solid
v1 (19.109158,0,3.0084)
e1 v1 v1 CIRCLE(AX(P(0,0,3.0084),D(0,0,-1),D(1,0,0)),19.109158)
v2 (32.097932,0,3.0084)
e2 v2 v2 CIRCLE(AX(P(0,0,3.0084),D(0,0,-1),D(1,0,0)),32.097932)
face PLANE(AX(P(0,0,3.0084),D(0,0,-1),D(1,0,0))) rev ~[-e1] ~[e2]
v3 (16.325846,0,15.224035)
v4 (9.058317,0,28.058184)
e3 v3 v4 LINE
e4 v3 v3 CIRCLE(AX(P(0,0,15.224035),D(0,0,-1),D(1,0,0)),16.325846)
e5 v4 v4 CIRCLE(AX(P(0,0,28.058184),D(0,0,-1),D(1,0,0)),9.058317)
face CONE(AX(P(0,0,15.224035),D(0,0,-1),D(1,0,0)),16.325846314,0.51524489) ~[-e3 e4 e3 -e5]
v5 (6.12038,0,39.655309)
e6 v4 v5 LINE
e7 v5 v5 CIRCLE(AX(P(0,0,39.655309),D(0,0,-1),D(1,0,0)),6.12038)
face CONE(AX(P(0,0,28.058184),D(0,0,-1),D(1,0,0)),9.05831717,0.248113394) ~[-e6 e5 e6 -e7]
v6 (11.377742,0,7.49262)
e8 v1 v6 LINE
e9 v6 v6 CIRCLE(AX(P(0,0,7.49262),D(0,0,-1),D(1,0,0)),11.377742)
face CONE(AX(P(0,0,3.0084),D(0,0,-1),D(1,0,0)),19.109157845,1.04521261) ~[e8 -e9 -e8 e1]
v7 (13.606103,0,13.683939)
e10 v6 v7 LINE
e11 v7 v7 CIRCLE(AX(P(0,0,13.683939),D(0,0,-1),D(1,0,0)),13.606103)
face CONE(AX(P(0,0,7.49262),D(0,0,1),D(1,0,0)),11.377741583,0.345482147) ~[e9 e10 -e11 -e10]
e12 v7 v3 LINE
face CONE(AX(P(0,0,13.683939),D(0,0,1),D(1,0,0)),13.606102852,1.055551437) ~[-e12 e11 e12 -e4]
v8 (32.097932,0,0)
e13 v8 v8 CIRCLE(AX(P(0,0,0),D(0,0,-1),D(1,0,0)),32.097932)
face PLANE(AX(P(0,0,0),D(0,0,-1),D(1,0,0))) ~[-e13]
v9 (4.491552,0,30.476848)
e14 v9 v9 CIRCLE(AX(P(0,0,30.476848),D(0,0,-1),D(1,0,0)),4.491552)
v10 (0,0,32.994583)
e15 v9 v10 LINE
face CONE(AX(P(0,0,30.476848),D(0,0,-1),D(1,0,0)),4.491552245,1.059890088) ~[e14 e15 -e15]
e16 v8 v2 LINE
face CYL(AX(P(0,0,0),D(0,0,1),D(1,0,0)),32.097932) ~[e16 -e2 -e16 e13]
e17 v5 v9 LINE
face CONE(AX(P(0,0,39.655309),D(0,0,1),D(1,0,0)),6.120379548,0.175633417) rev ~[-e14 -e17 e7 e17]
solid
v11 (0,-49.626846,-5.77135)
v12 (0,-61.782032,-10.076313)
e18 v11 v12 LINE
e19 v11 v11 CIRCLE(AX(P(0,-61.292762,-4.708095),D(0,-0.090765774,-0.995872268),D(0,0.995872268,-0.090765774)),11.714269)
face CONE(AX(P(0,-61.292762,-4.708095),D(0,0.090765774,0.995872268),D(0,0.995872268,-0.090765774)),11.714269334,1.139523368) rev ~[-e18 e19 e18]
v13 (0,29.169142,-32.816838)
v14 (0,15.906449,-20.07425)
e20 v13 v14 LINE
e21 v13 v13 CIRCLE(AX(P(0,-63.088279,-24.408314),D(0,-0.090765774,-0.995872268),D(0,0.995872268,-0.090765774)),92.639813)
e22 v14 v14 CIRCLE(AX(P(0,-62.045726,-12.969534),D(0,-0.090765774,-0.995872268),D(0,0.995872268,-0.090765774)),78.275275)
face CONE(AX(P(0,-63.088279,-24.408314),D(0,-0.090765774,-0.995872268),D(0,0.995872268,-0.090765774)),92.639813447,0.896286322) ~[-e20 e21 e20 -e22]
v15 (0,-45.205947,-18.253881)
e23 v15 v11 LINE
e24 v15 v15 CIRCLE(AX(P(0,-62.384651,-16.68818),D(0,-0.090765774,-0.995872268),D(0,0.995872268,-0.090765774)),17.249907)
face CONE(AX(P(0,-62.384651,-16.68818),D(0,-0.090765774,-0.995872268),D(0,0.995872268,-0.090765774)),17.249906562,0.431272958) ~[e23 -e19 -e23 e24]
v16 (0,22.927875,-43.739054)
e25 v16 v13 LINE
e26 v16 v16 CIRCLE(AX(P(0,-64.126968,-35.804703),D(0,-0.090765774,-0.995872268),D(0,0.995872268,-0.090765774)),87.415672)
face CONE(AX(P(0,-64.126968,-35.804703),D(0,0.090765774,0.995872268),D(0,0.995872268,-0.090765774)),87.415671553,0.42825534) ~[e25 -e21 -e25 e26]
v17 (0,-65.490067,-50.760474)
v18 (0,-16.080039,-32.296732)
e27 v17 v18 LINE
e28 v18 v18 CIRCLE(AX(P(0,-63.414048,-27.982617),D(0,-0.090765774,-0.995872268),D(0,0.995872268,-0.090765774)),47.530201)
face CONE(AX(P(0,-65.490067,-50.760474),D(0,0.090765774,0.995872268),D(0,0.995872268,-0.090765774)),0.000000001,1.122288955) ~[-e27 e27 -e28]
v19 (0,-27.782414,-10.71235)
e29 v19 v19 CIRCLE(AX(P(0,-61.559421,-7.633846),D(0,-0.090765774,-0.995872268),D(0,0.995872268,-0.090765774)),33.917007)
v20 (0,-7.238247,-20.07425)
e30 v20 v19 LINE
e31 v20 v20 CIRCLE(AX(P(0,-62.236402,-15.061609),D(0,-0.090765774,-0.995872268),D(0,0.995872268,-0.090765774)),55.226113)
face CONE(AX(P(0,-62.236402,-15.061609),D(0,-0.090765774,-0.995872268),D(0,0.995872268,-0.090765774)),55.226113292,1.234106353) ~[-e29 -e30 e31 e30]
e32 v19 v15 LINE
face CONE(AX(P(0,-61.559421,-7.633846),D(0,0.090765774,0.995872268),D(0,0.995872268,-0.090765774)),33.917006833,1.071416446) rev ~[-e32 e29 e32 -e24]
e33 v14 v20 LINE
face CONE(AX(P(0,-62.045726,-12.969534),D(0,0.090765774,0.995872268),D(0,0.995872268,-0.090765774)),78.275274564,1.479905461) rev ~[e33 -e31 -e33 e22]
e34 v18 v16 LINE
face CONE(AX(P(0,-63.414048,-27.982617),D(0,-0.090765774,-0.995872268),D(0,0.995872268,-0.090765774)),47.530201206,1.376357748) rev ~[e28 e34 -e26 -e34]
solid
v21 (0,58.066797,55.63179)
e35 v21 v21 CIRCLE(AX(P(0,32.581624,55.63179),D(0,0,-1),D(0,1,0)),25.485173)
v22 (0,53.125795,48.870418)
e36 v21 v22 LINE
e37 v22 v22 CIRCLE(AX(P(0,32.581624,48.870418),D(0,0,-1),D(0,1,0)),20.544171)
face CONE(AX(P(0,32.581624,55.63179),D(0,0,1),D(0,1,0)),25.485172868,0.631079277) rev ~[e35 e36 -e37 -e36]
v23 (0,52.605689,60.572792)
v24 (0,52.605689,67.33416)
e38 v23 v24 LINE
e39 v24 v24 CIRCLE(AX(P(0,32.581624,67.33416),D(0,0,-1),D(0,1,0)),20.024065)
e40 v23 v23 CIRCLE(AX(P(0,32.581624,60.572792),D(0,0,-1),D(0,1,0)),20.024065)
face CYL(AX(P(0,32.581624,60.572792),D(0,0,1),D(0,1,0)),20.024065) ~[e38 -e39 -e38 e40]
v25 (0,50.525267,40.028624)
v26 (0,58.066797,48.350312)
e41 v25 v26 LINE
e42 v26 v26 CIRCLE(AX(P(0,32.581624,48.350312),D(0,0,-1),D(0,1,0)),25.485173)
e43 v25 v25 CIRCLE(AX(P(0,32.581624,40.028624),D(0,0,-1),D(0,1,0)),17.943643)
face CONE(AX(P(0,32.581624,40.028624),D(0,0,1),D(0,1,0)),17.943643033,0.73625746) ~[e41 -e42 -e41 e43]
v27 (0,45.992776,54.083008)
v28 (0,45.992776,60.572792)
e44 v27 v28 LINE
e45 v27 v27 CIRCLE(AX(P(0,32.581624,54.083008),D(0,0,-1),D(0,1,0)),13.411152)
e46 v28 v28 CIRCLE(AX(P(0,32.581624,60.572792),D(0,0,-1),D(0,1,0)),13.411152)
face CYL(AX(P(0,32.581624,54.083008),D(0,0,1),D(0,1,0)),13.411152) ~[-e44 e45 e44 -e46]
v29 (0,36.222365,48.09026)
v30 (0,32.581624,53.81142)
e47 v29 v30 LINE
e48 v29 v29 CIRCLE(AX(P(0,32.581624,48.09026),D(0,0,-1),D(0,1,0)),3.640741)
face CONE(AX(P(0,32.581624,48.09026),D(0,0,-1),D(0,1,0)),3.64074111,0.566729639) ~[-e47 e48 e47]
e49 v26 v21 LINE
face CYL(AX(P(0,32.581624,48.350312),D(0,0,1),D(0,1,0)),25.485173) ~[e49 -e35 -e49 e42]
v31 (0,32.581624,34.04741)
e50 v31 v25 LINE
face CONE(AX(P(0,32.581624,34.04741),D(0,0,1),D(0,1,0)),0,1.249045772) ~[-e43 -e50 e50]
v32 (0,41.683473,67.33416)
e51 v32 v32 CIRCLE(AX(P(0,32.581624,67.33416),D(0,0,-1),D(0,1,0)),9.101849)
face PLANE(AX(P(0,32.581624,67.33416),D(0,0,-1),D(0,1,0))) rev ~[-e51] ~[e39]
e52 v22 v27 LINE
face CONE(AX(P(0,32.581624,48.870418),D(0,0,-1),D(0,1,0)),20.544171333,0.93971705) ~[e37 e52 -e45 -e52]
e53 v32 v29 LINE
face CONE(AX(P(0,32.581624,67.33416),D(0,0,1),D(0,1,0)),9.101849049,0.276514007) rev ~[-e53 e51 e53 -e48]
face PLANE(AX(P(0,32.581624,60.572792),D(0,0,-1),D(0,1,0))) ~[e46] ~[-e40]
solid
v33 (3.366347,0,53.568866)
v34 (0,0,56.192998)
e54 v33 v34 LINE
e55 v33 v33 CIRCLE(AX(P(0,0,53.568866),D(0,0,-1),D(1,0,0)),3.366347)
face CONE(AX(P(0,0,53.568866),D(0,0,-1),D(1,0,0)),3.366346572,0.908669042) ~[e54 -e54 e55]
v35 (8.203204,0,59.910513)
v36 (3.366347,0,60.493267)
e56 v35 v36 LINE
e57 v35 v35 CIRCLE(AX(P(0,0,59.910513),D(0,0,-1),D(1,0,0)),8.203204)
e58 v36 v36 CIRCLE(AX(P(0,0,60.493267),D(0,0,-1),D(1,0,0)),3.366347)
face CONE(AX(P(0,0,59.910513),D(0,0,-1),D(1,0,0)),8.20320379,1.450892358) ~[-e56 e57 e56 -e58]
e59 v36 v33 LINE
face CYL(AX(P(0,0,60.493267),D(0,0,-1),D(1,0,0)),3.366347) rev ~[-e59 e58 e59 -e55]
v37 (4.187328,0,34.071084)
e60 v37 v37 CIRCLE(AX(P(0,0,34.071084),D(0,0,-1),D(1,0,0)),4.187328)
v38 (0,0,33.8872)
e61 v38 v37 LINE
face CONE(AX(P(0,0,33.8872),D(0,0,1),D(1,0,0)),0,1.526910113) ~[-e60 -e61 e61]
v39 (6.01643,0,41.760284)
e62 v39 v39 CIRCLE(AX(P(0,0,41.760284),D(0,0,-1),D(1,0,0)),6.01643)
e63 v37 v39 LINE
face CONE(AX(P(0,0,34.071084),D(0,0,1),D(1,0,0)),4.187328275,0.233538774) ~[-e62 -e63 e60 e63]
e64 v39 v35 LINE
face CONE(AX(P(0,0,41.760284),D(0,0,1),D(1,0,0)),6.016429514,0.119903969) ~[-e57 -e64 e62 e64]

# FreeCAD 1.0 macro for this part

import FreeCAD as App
import Part
import Sketcher
Q = App.Units.Quantity


def add_polygon(sketch, points):
    """Adds a closed chain of lines whose ends are joined by coincident constraints."""
    first, n = sketch.GeometryCount, len(points)
    for a, b in zip(points, points[1:] + points[:1]):
        sketch.addGeometry(Part.LineSegment(App.Vector(*a, 0), App.Vector(*b, 0)), False)
    for i in range(n):
        sketch.addConstraint(Sketcher.Constraint("Coincident", first + i, 2, first + (i + 1) % n, 1))

doc = App.newDocument("Part")
body = doc.addObject("PartDesign::Body", "Body")

# Sketch on XZ plane
sketch1 = body.newObject("Sketcher::SketchObject", "Sketch")
sketch1.AttachmentSupport = (doc.getObject("XZ_Plane"), [""])
sketch1.MapMode = "FlatFace"
add_polygon(sketch1, [(9.058317, 28.058184), (6.12038, 39.655309), (4.491552, 30.476848), (0, 32.994583), (0, 0), (32.097932, 0), (32.097932, 3.0084), (19.109158, 3.0084), (11.377742, 7.49262), (13.606103, 13.683939), (16.325846, 15.224035)])  # lines 0-10
sketch1.addConstraint([
    Sketcher.Constraint("Vertical", 3),
    Sketcher.Constraint("Horizontal", 4),
    Sketcher.Constraint("Vertical", 5),
    Sketcher.Constraint("Horizontal", 6),
    Sketcher.Constraint("Coincident", 3, 2, -1, 1),
    Sketcher.Constraint("Perpendicular", 9, 10),
    Sketcher.Constraint("DistanceY", 5, 1, 5, 2, Q("3.0084 mm")),
    Sketcher.Constraint("DistanceX", 4, 1, 4, 2, Q("32.097932 mm")),
    Sketcher.Constraint("DistanceY", 10, 2, 2, 2, Q("4.936399 mm")),
    Sketcher.Constraint("Distance", 1, Q("9.321869 mm")),
    Sketcher.Constraint("Distance", 2, Q("5.149081 mm")),
    Sketcher.Constraint("Distance", 7, Q("8.937731 mm")),
    Sketcher.Constraint("Distance", 10, Q("14.748979 mm")),
    Sketcher.Constraint("DistanceX", 6, 2, 6, 1, Q("12.988774 mm")),
    Sketcher.Constraint("DistanceY", 3, 2, 3, 1, Q("32.994583 mm")),
    Sketcher.Constraint("DistanceX", -1, 1, 0, 2, Q("6.12038 mm")),
    Sketcher.Constraint("DistanceY", -1, 1, 0, 2, Q("39.655309 mm")),
    Sketcher.Constraint("DistanceX", -1, 1, 7, 2, Q("11.377742 mm")),
    Sketcher.Constraint("DistanceY", -1, 1, 8, 2, Q("13.683939 mm")),
    Sketcher.Constraint("DistanceX", 7, 2, 8, 2, Q("2.228361 mm")),
    Sketcher.Constraint("DistanceX", 9, 2, 6, 2, Q("2.783312 mm")),
])
revolution = body.newObject("PartDesign::Revolution", "Revolution")
revolution.Profile = sketch1
revolution.ReferenceAxis = (sketch1, ["V_Axis"])
revolution.Angle = 360
body2 = doc.addObject("PartDesign::Body", "Body001")

# Sketch on XZ plane
sketch2 = body2.newObject("Sketcher::SketchObject", "Sketch001")
sketch2.AttachmentSupport = (doc.getObject("XZ_Plane001"), [""])
sketch2.MapMode = "FlatFace"
add_polygon(sketch2, [(3.366347, 53.568866), (0, 56.192998), (0, 33.8872), (4.187328, 34.071084), (6.01643, 41.760284), (8.203204, 59.910513), (3.366347, 60.493267)])  # lines 0-6
sketch2.addConstraint([
    Sketcher.Constraint("Vertical", 1),
    Sketcher.Constraint("Vertical", 6),
    Sketcher.Constraint("PointOnObject", 0, 2, -2),
    Sketcher.Constraint("Perpendicular", 4, 5),
    Sketcher.Constraint("Angle", 4, Q("83.130009 deg")),
    Sketcher.Constraint("DistanceY", 6, 2, 6, 1, Q("6.924401 mm")),
    Sketcher.Constraint("DistanceY", -1, 1, 1, 2, Q("33.8872 mm")),
    Sketcher.Constraint("DistanceX", 2, 2, 3, 2, Q("1.829101 mm")),
    Sketcher.Constraint("DistanceY", 2, 2, 3, 2, Q("7.6892 mm")),
    Sketcher.Constraint("DistanceY", 1, 2, 1, 1, Q("22.305798 mm")),
    Sketcher.Constraint("DistanceX", -1, 1, 2, 2, Q("4.187328 mm")),
    Sketcher.Constraint("DistanceY", 3, 2, 4, 2, Q("18.150229 mm")),
    Sketcher.Constraint("DistanceY", 0, 2, 5, 2, Q("4.300269 mm")),
    Sketcher.Constraint("DistanceX", 5, 2, 2, 2, Q("0.820982 mm")),
])
revolution2 = body2.newObject("PartDesign::Revolution", "Revolution001")
revolution2.Profile = sketch2
revolution2.ReferenceAxis = (sketch2, ["V_Axis"])
revolution2.Angle = 360
body3 = doc.addObject("PartDesign::Body", "Body002")

# Sketch on YZ plane
sketch3 = body3.newObject("Sketcher::SketchObject", "Sketch002")
sketch3.AttachmentSupport = (doc.getObject("YZ_Plane002"), [""])
sketch3.MapMode = "FlatFace"
add_polygon(sketch3, [(36.222365, 48.09026), (32.581624, 53.81142), (32.581624, 34.04741), (50.525267, 40.028624), (58.066797, 48.350312), (58.066797, 55.63179), (53.125795, 48.870418), (45.992776, 54.083008), (45.992776, 60.572792), (52.605689, 60.572792), (52.605689, 67.33416), (41.683473, 67.33416)])  # lines 0-11
sketch3.addGeometry(Part.LineSegment(App.Vector(32.581624, 67.33416, 0), App.Vector(32.581624, 34.04741, 0)), True)  # axis
sketch3.addConstraint([
    Sketcher.Constraint("Vertical", 1),
    Sketcher.Constraint("Vertical", 4),
    Sketcher.Constraint("Vertical", 7),
    Sketcher.Constraint("Horizontal", 8),
    Sketcher.Constraint("Vertical", 9),
    Sketcher.Constraint("Horizontal", 10),
    Sketcher.Constraint("Vertical", 12),
    Sketcher.Constraint("Coincident", 12, 2, 1, 2),
    Sketcher.Constraint("Perpendicular", 5, 6),
    Sketcher.Constraint("Horizontal", 10, 2, 12, 1),
    Sketcher.Constraint("DistanceX", 5, 2, 3, 2, Q("4.941002 mm")),
    Sketcher.Constraint("DistanceY", 5, 2, 0, 2, Q("4.941002 mm")),
    Sketcher.Constraint("DistanceY", 4, 2, 7, 2, Q("4.941002 mm")),
    Sketcher.Constraint("DistanceY", 1, 2, 1, 1, Q("19.76401 mm")),
    Sketcher.Constraint("DistanceY", 4, 1, 4, 2, Q("7.281478 mm")),
    Sketcher.Constraint("DistanceY", 9, 1, 9, 2, Q("6.761368 mm")),
    Sketcher.Constraint("DistanceY", 12, 2, 12, 1, Q("33.28675 mm")),
    Sketcher.Constraint("DistanceX", 11, 2, 2, 2, Q("14.302902 mm")),
    Sketcher.Constraint("DistanceY", 11, 2, 12, 1, Q("19.2439 mm")),
    Sketcher.Constraint("Distance", 2, Q("18.914261 mm")),
    Sketcher.Constraint("Distance", 6, Q("8.834651 mm")),
    Sketcher.Constraint("DistanceX", 8, 1, 8, 2, Q("6.612913 mm")),
    Sketcher.Constraint("DistanceX", 10, 2, 10, 1, Q("10.922216 mm")),
    Sketcher.Constraint("DistanceY", -1, 1, 0, 2, Q("53.81142 mm")),
    Sketcher.Constraint("DistanceX", -1, 1, 8, 2, Q("52.605689 mm")),
    Sketcher.Constraint("DistanceX", 2, 2, 3, 2, Q("7.54153 mm")),
    Sketcher.Constraint("DistanceX", 0, 2, 5, 2, Q("20.544171 mm")),
])
revolution3 = body3.newObject("PartDesign::Revolution", "Revolution002")
revolution3.Profile = sketch3
revolution3.ReferenceAxis = (sketch3, ["Axis0"])
revolution3.Angle = 360
body4 = doc.addObject("PartDesign::Body", "Body003")

# Sketch on YZ plane
sketch4 = body4.newObject("Sketcher::SketchObject", "Sketch003")
sketch4.AttachmentSupport = (doc.getObject("YZ_Plane003"), [""])
sketch4.MapMode = "FlatFace"
add_polygon(sketch4, [(-27.782414, -10.71235), (-45.205947, -18.253881), (-49.626846, -5.77135), (-61.782032, -10.076313), (-65.490067, -50.760474), (-16.080039, -32.296732), (22.927875, -43.739054), (29.169142, -32.816838), (15.906449, -20.07425), (-7.238247, -20.07425)])  # lines 0-9
sketch4.addGeometry(Part.LineSegment(App.Vector(-61.292762, -4.708095, 0), App.Vector(-65.490067, -50.760474, 0)), True)  # axis
sketch4.addConstraint([
    Sketcher.Constraint("Horizontal", 8),
    Sketcher.Constraint("Coincident", 10, 2, 3, 2),
    Sketcher.Constraint("Perpendicular", 1, 2),
    Sketcher.Constraint("Parallel", 3, 10),
    Sketcher.Constraint("DistanceY", 9, 2, 1, 2, Q("4.941 mm")),
    Sketcher.Constraint("DistanceX", 1, 2, 0, 2, Q("4.420899 mm")),
    Sketcher.Constraint("DistanceY", 7, 2, 1, 2, Q("14.302901 mm")),
    Sketcher.Constraint("DistanceX", 0, 2, 8, 2, Q("37.9677 mm")),
    Sketcher.Constraint("Distance", 0, Q("18.985631 mm")),
    Sketcher.Constraint("Distance", 1, Q("13.242279 mm")),
    Sketcher.Constraint("Distance", 2, Q("12.895009 mm")),
    Sketcher.Constraint("Distance", 3, Q("40.85279 mm")),
    Sketcher.Constraint("Distance", 4, Q("52.747139 mm")),
    Sketcher.Constraint("Distance", 10, Q("46.243259 mm")),
    Sketcher.Constraint("DistanceX", 8, 2, 8, 1, Q("23.144696 mm")),
    Sketcher.Constraint("DistanceY", 0, 2, -1, 1, Q("18.253881 mm")),
    Sketcher.Constraint("DistanceX", 2, 2, -1, 1, Q("61.782032 mm")),
    Sketcher.Constraint("DistanceX", 4, 2, -1, 1, Q("16.080039 mm")),
    Sketcher.Constraint("DistanceY", 6, 2, -1, 1, Q("32.816838 mm")),
    Sketcher.Constraint("DistanceX", 10, 1, -1, 1, Q("61.292762 mm")),
    Sketcher.Constraint("DistanceX", 0, 2, 5, 2, Q("68.133822 mm")),
    Sketcher.Constraint("DistanceY", 3, 2, 5, 2, Q("7.02142 mm")),
    Sketcher.Constraint("DistanceX", 4, 2, 6, 2, Q("45.249181 mm")),
])
revolution4 = body4.newObject("PartDesign::Revolution", "Revolution003")
revolution4.Profile = sketch4
revolution4.ReferenceAxis = (sketch4, ["Axis0"])
revolution4.Angle = 360

doc.recompute()
